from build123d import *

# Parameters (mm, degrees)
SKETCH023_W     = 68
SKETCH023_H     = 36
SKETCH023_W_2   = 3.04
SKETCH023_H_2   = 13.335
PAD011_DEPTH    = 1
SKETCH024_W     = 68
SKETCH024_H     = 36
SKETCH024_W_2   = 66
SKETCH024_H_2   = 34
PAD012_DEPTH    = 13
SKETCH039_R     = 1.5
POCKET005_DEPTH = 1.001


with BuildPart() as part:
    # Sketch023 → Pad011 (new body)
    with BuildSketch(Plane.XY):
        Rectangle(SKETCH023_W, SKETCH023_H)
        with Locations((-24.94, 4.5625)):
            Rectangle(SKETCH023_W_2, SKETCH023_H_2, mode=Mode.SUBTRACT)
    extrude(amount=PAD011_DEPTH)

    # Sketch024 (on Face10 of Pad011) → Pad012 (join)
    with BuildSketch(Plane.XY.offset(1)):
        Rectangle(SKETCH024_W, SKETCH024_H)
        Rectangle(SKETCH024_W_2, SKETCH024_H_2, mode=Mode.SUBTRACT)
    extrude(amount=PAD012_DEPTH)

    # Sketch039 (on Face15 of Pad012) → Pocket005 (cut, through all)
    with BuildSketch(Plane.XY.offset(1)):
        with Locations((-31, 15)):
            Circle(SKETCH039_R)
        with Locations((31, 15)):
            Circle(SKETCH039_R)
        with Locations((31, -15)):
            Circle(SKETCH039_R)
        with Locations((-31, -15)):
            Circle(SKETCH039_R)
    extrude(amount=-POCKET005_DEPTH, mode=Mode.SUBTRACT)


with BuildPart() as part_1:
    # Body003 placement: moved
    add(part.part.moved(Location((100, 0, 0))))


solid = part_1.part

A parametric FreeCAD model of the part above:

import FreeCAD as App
import Part
import Sketcher

V = App.Vector
Q = App.Units.Quantity

doc = App.newDocument("Part")
params = doc.addObject("Spreadsheet::Sheet", "Params")
for row, (alias, value) in enumerate([
    ("sketch1_width", "68 mm"),
    ("sketch1_height", "36 mm"),
    ("sketch1_width2", "3.04 mm"),
    ("pad1_length", "1 mm"),
    ("sketch2_width", "68 mm"),
    ("sketch2_width2", "66 mm"),
    ("sketch2_height", "36 mm"),
    ("sketch2_height2", "34 mm"),
    ("pad2_length", "13 mm"),
    ("sketch3_diameter", "3 mm"),
], start=1):
    params.set(f"A{row}", alias)
    params.set(f"B{row}", "=" + value)
    params.setAlias(f"B{row}", alias)

body = doc.addObject("PartDesign::Body", "Body")

# Sketch on XY plane
sketch1 = doc.addObject("Sketcher::SketchObject", "Sketch")
body.addObject(sketch1)
sketch1.AttachmentSupport = (doc.XY_Plane, [""])
sketch1.MapMode = "FlatFace"
sketch1.addGeometry(Part.LineSegment(V(-34, 18, 0), V(-34, -18, 0)), False)
sketch1.addGeometry(Part.LineSegment(V(-34, -18, 0), V(34, -18, 0)), False)
sketch1.addGeometry(Part.LineSegment(V(34, -18, 0), V(34, 18, 0)), False)
sketch1.addGeometry(Part.LineSegment(V(34, 18, 0), V(-34, 18, 0)), False)
sketch1.addGeometry(Part.LineSegment(V(-23.4, -2.1, 0), V(-26.5, -2.1, 0)), False)
sketch1.addGeometry(Part.LineSegment(V(-26.5, -2.1, 0), V(-26.5, 11.2, 0)), False)
sketch1.addGeometry(Part.LineSegment(V(-26.5, 11.2, 0), V(-23.4, 11.2, 0)), False)
sketch1.addGeometry(Part.LineSegment(V(-23.4, 11.2, 0), V(-23.4, -2.1, 0)), False)
sketch1.addConstraint(Sketcher.Constraint("Coincident", 0, 2, 1, 1))
sketch1.addConstraint(Sketcher.Constraint("Coincident", 1, 2, 2, 1))
sketch1.addConstraint(Sketcher.Constraint("Coincident", 2, 2, 3, 1))
sketch1.addConstraint(Sketcher.Constraint("Coincident", 3, 2, 0, 1))
sketch1.addConstraint(Sketcher.Constraint("Coincident", 4, 2, 5, 1))
sketch1.addConstraint(Sketcher.Constraint("Coincident", 5, 2, 6, 1))
sketch1.addConstraint(Sketcher.Constraint("Coincident", 6, 2, 7, 1))
sketch1.addConstraint(Sketcher.Constraint("Coincident", 7, 2, 4, 1))
sketch1.addConstraint(Sketcher.Constraint("Vertical", 0))
sketch1.addConstraint(Sketcher.Constraint("Horizontal", 1))
sketch1.addConstraint(Sketcher.Constraint("Vertical", 2))
sketch1.addConstraint(Sketcher.Constraint("Horizontal", 3))
sketch1.addConstraint(Sketcher.Constraint("Horizontal", 4))
sketch1.addConstraint(Sketcher.Constraint("Vertical", 5))
sketch1.addConstraint(Sketcher.Constraint("Horizontal", 6))
sketch1.addConstraint(Sketcher.Constraint("Vertical", 7))
sketch1.addConstraint(Sketcher.Constraint("Symmetric", 0, 2, 2, 2, -1, 1))
sketch1.addConstraint(Sketcher.Constraint("DistanceX", 1, 1, 1, 2, Q("68 mm")))
sketch1.addConstraint(Sketcher.Constraint("DistanceY", 0, 2, 0, 1, Q("36 mm")))
sketch1.addConstraint(Sketcher.Constraint("DistanceX", 4, 2, 4, 1, Q("3.04 mm")))
sketch1.addConstraint(Sketcher.Constraint("DistanceY", 5, 1, 5, 2, Q("13.335 mm")))
sketch1.addConstraint(Sketcher.Constraint("DistanceX", 4, 2, -1, 1, Q("26.46 mm")))
sketch1.addConstraint(Sketcher.Constraint("DistanceY", -1, 1, 5, 2, Q("11.23 mm")))
sketch1.setExpression("Constraints[17]", "Params.sketch1_width")
sketch1.setExpression("Constraints[18]", "Params.sketch1_height")
sketch1.setExpression("Constraints[19]", "Params.sketch1_width2")
pad1 = doc.addObject("PartDesign::Pad", "Pad")
body.addObject(pad1)
pad1.Profile = sketch1
pad1.setExpression("Length", "Params.pad1_length")

# Sketch on XY plane
sketch2 = doc.addObject("Sketcher::SketchObject", "Sketch001")
body.addObject(sketch2)
sketch2.AttachmentSupport = (doc.XY_Plane, [""])
sketch2.MapMode = "FlatFace"
sketch2.AttachmentOffset = App.Placement(V(0, 0, 1), App.Rotation())
sketch2.addGeometry(Part.LineSegment(V(-34, 18, 0), V(-34, -18, 0)), False)
sketch2.addGeometry(Part.LineSegment(V(-34, -18, 0), V(34, -18, 0)), False)
sketch2.addGeometry(Part.LineSegment(V(34, -18, 0), V(34, 18, 0)), False)
sketch2.addGeometry(Part.LineSegment(V(34, 18, 0), V(-34, 18, 0)), False)
sketch2.addGeometry(Part.LineSegment(V(33, -17, 0), V(-33, -17, 0)), False)
sketch2.addGeometry(Part.LineSegment(V(-33, -17, 0), V(-33, 17, 0)), False)
sketch2.addGeometry(Part.LineSegment(V(-33, 17, 0), V(33, 17, 0)), False)
sketch2.addGeometry(Part.LineSegment(V(33, 17, 0), V(33, -17, 0)), False)
sketch2.addConstraint(Sketcher.Constraint("Coincident", 0, 2, 1, 1))
sketch2.addConstraint(Sketcher.Constraint("Coincident", 1, 2, 2, 1))
sketch2.addConstraint(Sketcher.Constraint("Coincident", 2, 2, 3, 1))
sketch2.addConstraint(Sketcher.Constraint("Coincident", 3, 2, 0, 1))
sketch2.addConstraint(Sketcher.Constraint("Coincident", 4, 2, 5, 1))
sketch2.addConstraint(Sketcher.Constraint("Coincident", 5, 2, 6, 1))
sketch2.addConstraint(Sketcher.Constraint("Coincident", 6, 2, 7, 1))
sketch2.addConstraint(Sketcher.Constraint("Coincident", 7, 2, 4, 1))
sketch2.addConstraint(Sketcher.Constraint("Vertical", 0))
sketch2.addConstraint(Sketcher.Constraint("Horizontal", 1))
sketch2.addConstraint(Sketcher.Constraint("Vertical", 2))
sketch2.addConstraint(Sketcher.Constraint("Horizontal", 3))
sketch2.addConstraint(Sketcher.Constraint("Horizontal", 4))
sketch2.addConstraint(Sketcher.Constraint("Vertical", 5))
sketch2.addConstraint(Sketcher.Constraint("Horizontal", 6))
sketch2.addConstraint(Sketcher.Constraint("Vertical", 7))
sketch2.addConstraint(Sketcher.Constraint("Symmetric", 0, 2, 2, 2, -1, 1))
sketch2.addConstraint(Sketcher.Constraint("Symmetric", 4, 2, 6, 2, -1, 1))
sketch2.addConstraint(Sketcher.Constraint("DistanceX", 1, 1, 1, 2, Q("68 mm")))
sketch2.addConstraint(Sketcher.Constraint("DistanceX", 4, 2, 4, 1, Q("66 mm")))
sketch2.addConstraint(Sketcher.Constraint("DistanceY", 0, 2, 0, 1, Q("36 mm")))
sketch2.addConstraint(Sketcher.Constraint("DistanceY", 5, 1, 5, 2, Q("34 mm")))
sketch2.setExpression("Constraints[18]", "Params.sketch2_width")
sketch2.setExpression("Constraints[19]", "Params.sketch2_width2")
sketch2.setExpression("Constraints[20]", "Params.sketch2_height")
sketch2.setExpression("Constraints[21]", "Params.sketch2_height2")
pad2 = doc.addObject("PartDesign::Pad", "Pad001")
body.addObject(pad2)
pad2.Profile = sketch2
pad2.setExpression("Length", "Params.pad2_length")

# Sketch on XY plane
sketch3 = doc.addObject("Sketcher::SketchObject", "Sketch002")
body.addObject(sketch3)
sketch3.AttachmentSupport = (doc.XY_Plane, [""])
sketch3.MapMode = "FlatFace"
sketch3.AttachmentOffset = App.Placement(V(0, 0, 1), App.Rotation())
sketch3.addGeometry(Part.Circle(V(-31, 15, 0), V(0, 0, 1), 1.5), False)
sketch3.addGeometry(Part.Circle(V(31, 15, 0), V(0, 0, 1), 1.5), False)
sketch3.addGeometry(Part.Circle(V(31, -15, 0), V(0, 0, 1), 1.5), False)
sketch3.addGeometry(Part.Circle(V(-31, -15, 0), V(0, 0, 1), 1.5), False)
sketch3.addConstraint(Sketcher.Constraint("Equal", 0, 1))
sketch3.addConstraint(Sketcher.Constraint("Equal", 1, 2))
sketch3.addConstraint(Sketcher.Constraint("Equal", 2, 3))
sketch3.addConstraint(Sketcher.Constraint("Symmetric", 0, 3, 2, 3, -1, 1))
sketch3.addConstraint(Sketcher.Constraint("Symmetric", 1, 3, 3, 3, -1, 1))
sketch3.addConstraint(Sketcher.Constraint("Symmetric", 0, 3, 1, 3, -2))
sketch3.addConstraint(Sketcher.Constraint("Diameter", 0, Q("3 mm")))
sketch3.addConstraint(Sketcher.Constraint("DistanceX", 0, 3, -1, 1, Q("31 mm")))
sketch3.addConstraint(Sketcher.Constraint("DistanceY", -1, 1, 0, 3, Q("15 mm")))
sketch3.setExpression("Constraints[6]", "Params.sketch3_diameter")
pocket1 = doc.addObject("PartDesign::Pocket", "Pocket")
body.addObject(pocket1)
pocket1.Profile = sketch3
pocket1.Type = "ThroughAll"
body2 = doc.addObject("PartDesign::Body", "Body001")
doc.recompute()

body.Placement = App.Placement(V(100, 0, 0), App.Rotation(V(0, 0, 1), 0))
boolean = doc.addObject("PartDesign::Boolean", "Boolean")
body2.addObject(boolean)
boolean.Type = "Fuse"
boolean.addObjects([body])

doc.recompute()
